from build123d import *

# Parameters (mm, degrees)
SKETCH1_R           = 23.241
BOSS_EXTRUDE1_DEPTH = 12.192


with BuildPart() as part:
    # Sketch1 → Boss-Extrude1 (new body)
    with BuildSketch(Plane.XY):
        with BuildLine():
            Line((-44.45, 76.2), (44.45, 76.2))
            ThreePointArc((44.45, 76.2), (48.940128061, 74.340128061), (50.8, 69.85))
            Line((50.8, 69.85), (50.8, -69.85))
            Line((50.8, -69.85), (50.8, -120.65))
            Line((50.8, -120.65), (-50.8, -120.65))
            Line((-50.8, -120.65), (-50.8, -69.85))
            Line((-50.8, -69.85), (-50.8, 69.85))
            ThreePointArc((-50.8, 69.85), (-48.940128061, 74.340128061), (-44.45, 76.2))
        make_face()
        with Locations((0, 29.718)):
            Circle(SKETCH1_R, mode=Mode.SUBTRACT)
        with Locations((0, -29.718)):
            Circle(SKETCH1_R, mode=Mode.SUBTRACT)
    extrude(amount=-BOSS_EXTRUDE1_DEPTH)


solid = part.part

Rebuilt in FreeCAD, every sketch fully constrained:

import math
import FreeCAD as App
import Part
import Sketcher
from FreeCAD import Vector
Q = App.Units.Quantity

doc = App.newDocument("Part")
body = doc.addObject("PartDesign::Body", "Body")

sketch1 = body.newObject("Sketcher::SketchObject", "Sketch")
sketch1.AttachmentSupport = (doc.getObject("XY_Plane"), [""])
sketch1.MapMode = "FlatFace"
sketch1.addGeometry([
    Part.LineSegment(Vector(44, 76, 0), Vector(-44, 76, 0)),
    Part.ArcOfCircle(Part.Circle(Vector(-44, 70, 0), Vector(0, 0, 1), 6), math.radians(90), math.radians(180)),
    Part.LineSegment(Vector(-51, 70, 0), Vector(-51, -121, 0)),
    Part.LineSegment(Vector(-51, -121, 0), Vector(51, -121, 0)),
    Part.LineSegment(Vector(51, -121, 0), Vector(51, 70, 0)),
    Part.ArcOfCircle(Part.Circle(Vector(44, 70, 0), Vector(0, 0, 1), 6), math.radians(0), math.radians(90)),
    Part.Circle(Vector(0, -30, 0), Vector(0, 0, 1), 23),
    Part.Circle(Vector(0, 30, 0), Vector(0, 0, 1), 23),
], False)
sketch1.addConstraint([
    Sketcher.Constraint("Tangent", 0, 2, 1, 1),
    Sketcher.Constraint("Tangent", 1, 2, 2, 1),
    Sketcher.Constraint("Coincident", 2, 2, 3, 1),
    Sketcher.Constraint("Coincident", 3, 2, 4, 1),
    Sketcher.Constraint("Tangent", 4, 2, 5, 1),
    Sketcher.Constraint("Tangent", 5, 2, 0, 1),
    Sketcher.Constraint("Horizontal", 0),
    Sketcher.Constraint("Vertical", 2),
    Sketcher.Constraint("Horizontal", 3),
    Sketcher.Constraint("Vertical", 4),
    Sketcher.Constraint("Equal", 1, 5),
    Sketcher.Constraint("Equal", 6, 7),
    Sketcher.Constraint("Symmetric", 6, 3, 7, 3, -1, 1),
    Sketcher.Constraint("PointOnObject", 6, 3, -2),
    Sketcher.Constraint("Diameter", 6, Q("1.83 in")),
    Sketcher.Constraint("DistanceX", 3, 1, 3, 2, Q("4 in")),
    Sketcher.Constraint("Radius", 1, Q("0.25 in")),
    Sketcher.Constraint("DistanceY", 2, 2, 2, 1, Q("7.5 in")),
    Sketcher.Constraint("DistanceY", -1, 1, 0, 2, Q("3 in")),
    Sketcher.Constraint("DistanceX", 1, 2, -1, 1, Q("2 in")),
    Sketcher.Constraint("DistanceY", 6, 3, -1, 1, Q("1.17 in")),
])
pad1 = body.newObject("PartDesign::Pad", "Pad")
pad1.Profile = sketch1
pad1.Length = Q("0.48 in")
pad1.Reversed = True

doc.recompute()
